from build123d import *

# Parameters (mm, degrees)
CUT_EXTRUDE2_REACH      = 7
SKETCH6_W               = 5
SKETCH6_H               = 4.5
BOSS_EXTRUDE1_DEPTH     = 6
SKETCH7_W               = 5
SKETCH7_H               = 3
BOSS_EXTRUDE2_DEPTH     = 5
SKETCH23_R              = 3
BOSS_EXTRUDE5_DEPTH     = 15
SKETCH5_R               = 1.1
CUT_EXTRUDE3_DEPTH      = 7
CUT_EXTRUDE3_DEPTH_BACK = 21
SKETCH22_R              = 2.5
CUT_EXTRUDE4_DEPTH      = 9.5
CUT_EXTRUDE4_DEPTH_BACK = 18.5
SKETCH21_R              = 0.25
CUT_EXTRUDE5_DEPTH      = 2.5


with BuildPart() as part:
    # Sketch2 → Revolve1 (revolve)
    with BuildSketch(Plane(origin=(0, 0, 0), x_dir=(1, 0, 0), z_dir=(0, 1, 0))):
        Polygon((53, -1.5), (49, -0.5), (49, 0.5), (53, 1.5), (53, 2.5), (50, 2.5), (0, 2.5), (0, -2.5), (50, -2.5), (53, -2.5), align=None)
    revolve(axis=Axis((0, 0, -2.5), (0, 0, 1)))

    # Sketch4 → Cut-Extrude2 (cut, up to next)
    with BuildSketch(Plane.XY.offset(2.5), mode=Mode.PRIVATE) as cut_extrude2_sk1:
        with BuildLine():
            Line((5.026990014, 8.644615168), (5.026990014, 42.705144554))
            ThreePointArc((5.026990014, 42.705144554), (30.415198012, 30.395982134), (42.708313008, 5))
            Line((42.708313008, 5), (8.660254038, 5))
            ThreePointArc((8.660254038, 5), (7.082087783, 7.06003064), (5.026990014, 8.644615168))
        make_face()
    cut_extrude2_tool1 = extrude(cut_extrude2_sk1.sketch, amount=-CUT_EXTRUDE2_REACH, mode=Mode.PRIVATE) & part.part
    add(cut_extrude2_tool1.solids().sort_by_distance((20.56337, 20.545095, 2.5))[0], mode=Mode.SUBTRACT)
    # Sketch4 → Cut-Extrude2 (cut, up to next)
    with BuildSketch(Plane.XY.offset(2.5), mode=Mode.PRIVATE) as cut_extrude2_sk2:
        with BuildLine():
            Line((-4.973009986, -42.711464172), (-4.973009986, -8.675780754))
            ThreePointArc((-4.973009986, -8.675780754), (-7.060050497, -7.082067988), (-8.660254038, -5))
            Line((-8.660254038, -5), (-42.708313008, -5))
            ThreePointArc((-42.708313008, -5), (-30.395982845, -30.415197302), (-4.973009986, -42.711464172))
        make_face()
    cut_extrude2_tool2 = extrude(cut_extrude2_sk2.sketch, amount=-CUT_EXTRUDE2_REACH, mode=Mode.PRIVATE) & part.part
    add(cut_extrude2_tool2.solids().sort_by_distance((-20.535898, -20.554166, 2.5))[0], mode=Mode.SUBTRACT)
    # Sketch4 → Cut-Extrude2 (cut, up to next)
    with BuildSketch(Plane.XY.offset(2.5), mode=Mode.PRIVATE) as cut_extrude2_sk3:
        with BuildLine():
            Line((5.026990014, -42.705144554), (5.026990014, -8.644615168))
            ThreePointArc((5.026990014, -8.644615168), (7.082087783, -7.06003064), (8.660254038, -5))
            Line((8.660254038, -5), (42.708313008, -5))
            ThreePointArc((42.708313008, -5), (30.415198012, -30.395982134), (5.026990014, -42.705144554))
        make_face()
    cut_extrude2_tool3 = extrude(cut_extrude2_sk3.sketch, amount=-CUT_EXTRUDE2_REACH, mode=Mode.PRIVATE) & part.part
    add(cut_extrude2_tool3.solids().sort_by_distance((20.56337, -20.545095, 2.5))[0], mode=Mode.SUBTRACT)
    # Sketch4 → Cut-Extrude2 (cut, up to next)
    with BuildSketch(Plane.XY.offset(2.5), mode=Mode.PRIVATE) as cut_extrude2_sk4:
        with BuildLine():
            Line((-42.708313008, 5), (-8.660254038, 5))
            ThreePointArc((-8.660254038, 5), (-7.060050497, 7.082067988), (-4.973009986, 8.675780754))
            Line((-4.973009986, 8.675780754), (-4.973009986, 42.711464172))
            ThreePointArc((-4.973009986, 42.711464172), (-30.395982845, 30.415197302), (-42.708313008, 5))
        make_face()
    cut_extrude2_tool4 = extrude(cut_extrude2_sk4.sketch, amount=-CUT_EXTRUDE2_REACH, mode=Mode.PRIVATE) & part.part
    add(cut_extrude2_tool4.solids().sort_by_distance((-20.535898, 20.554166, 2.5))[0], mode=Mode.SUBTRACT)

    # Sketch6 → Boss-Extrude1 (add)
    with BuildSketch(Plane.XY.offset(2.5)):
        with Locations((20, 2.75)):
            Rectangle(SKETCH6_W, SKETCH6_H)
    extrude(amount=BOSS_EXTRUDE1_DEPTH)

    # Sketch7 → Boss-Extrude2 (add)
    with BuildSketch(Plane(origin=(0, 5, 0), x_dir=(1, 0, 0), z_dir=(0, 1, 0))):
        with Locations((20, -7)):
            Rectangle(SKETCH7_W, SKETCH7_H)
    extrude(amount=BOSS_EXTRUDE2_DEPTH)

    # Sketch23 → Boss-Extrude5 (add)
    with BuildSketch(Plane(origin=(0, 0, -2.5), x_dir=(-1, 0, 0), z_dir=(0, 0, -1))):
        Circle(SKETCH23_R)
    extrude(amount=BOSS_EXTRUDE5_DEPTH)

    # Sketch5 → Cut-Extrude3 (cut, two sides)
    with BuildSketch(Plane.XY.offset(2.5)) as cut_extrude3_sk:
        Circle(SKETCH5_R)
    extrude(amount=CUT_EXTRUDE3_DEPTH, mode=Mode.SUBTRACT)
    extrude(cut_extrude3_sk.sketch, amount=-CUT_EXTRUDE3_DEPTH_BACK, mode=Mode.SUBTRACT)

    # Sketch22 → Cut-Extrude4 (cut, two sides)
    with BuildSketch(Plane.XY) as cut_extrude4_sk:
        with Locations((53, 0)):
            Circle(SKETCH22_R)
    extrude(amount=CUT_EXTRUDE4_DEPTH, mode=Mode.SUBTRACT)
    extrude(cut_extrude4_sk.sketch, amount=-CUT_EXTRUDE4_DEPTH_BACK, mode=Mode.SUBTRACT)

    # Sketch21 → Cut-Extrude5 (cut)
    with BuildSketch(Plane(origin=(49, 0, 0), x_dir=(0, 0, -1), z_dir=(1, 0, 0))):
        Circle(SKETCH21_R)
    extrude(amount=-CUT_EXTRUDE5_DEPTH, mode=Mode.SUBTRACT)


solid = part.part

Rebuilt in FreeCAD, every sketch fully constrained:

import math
import FreeCAD as App
import Part
import Sketcher


def add_polygon(sketch, points):
    """Adds a closed chain of lines whose ends are joined by coincident constraints."""
    first, n = sketch.GeometryCount, len(points)
    for a, b in zip(points, points[1:] + points[:1]):
        sketch.addGeometry(Part.LineSegment(App.Vector(*a, 0), App.Vector(*b, 0)), False)
    for i in range(n):
        sketch.addConstraint(Sketcher.Constraint("Coincident", first + i, 2, first + (i + 1) % n, 1))

doc = App.newDocument("Part")
body = doc.addObject("PartDesign::Body", "Body")

sketch1 = body.newObject("Sketcher::SketchObject", "Sketch")
sketch1.AttachmentSupport = (doc.getObject("XZ_Plane"), [""])
sketch1.MapMode = "FlatFace"
add_polygon(sketch1, [(53, 1.5), (49, 0.5), (49, -0.5), (53, -1.5), (53, -2.5), (0, -2.5), (0, 2.5), (53, 2.5)])
sketch1.addConstraint([
    Sketcher.Constraint("Vertical", 1),
    Sketcher.Constraint("Vertical", 3),
    Sketcher.Constraint("Horizontal", 4),
    Sketcher.Constraint("Vertical", 5),
    Sketcher.Constraint("Horizontal", 6),
    Sketcher.Constraint("Vertical", 7),
    Sketcher.Constraint("Symmetric", 4, 2, 5, 2, -1, 1),
    Sketcher.Constraint("Symmetric", 2, 2, 7, 2, -1),
    Sketcher.Constraint("Equal", 1, 3),
    Sketcher.Constraint("Equal", 0, 2),
    Sketcher.Constraint("DistanceX", 4, 2, 4, 1, 53.0),
    Sketcher.Constraint("DistanceY", 1, 2, 1, 1, 1.0),
    Sketcher.Constraint("DistanceY", 5, 1, 5, 2, 5.0),
    Sketcher.Constraint("DistanceX", -1, 1, 0, 2, 49.0),
])
revolution = body.newObject("PartDesign::Revolution", "Revolution")
revolution.Profile = sketch1
revolution.ReferenceAxis = (sketch1, ["V_Axis"])
revolution.Angle = 360

sketch2 = body.newObject("Sketcher::SketchObject", "Sketch001")
sketch2.AttachmentSupport = (doc.getObject("XY_Plane"), [""])
sketch2.MapMode = "FlatFace"
sketch2.AttachmentOffset = App.Placement(App.Vector(0, 0, 2.5), App.Rotation())
sketch2.addGeometry([
    Part.LineSegment(App.Vector(5, 43, 0), App.Vector(5, 9, 0)),
    Part.ArcOfCircle(Part.Circle(App.Vector(0, 0, 0), App.Vector(0, 0, 1), 10), math.radians(30), math.radians(60)),
    Part.LineSegment(App.Vector(9, 5, 0), App.Vector(43, 5, 0)),
    Part.ArcOfCircle(Part.Circle(App.Vector(0, 0, 0), App.Vector(0, 0, 1), 43), math.radians(7), math.radians(83)),
], False)
sketch2.addConstraint([
    Sketcher.Constraint("Coincident", 0, 2, 1, 2),
    Sketcher.Constraint("Coincident", 1, 1, 2, 1),
    Sketcher.Constraint("Coincident", 2, 2, 3, 1),
    Sketcher.Constraint("Coincident", 3, 2, 0, 1),
    Sketcher.Constraint("Vertical", 0),
    Sketcher.Constraint("Horizontal", 2),
    Sketcher.Constraint("Coincident", 1, 3, -1, 1),
    Sketcher.Constraint("Coincident", 3, 3, -1, 1),
    Sketcher.Constraint("Radius", 1, 10.0),
    Sketcher.Constraint("Radius", 3, 43.0),
    Sketcher.Constraint("DistanceY", -1, 1, 1, 1, 5.0),
    Sketcher.Constraint("DistanceY", 0, 2, 0, 1, 34.060529),
])
pocket1 = body.newObject("PartDesign::Pocket", "Pocket")
pocket1.Profile = sketch2
pocket1.Type = "UpToFirst"

sketch3 = body.newObject("Sketcher::SketchObject", "Sketch002")
sketch3.AttachmentSupport = (doc.getObject("XY_Plane"), [""])
sketch3.MapMode = "FlatFace"
sketch3.AttachmentOffset = App.Placement(App.Vector(0, 0, 2.5), App.Rotation())
sketch3.addGeometry([
    Part.LineSegment(App.Vector(-5, -43, 0), App.Vector(-5, -9, 0)),
    Part.ArcOfCircle(Part.Circle(App.Vector(0, 0, 0), App.Vector(0, 0, 1), 10), math.radians(-150), math.radians(-120)),
    Part.LineSegment(App.Vector(-9, -5, 0), App.Vector(-43, -5, 0)),
    Part.ArcOfCircle(Part.Circle(App.Vector(0, 0, 0), App.Vector(0, 0, 1), 43), math.radians(-173), math.radians(-97)),
], False)
sketch3.addConstraint([
    Sketcher.Constraint("Coincident", 0, 2, 1, 2),
    Sketcher.Constraint("Coincident", 1, 1, 2, 1),
    Sketcher.Constraint("Coincident", 2, 2, 3, 1),
    Sketcher.Constraint("Coincident", 3, 2, 0, 1),
    Sketcher.Constraint("Vertical", 0),
    Sketcher.Constraint("Horizontal", 2),
    Sketcher.Constraint("Coincident", 1, 3, -1, 1),
    Sketcher.Constraint("Coincident", 3, 3, -1, 1),
    Sketcher.Constraint("Radius", 1, 10.0),
    Sketcher.Constraint("Radius", 3, 43.0),
    Sketcher.Constraint("DistanceY", 1, 1, -1, 1, 5.0),
    Sketcher.Constraint("DistanceY", 0, 1, 0, 2, 34.035683),
])
pocket2 = body.newObject("PartDesign::Pocket", "Pocket001")
pocket2.Profile = sketch3
pocket2.Type = "UpToFirst"

sketch4 = body.newObject("Sketcher::SketchObject", "Sketch003")
sketch4.AttachmentSupport = (doc.getObject("XY_Plane"), [""])
sketch4.MapMode = "FlatFace"
sketch4.AttachmentOffset = App.Placement(App.Vector(0, 0, 2.5), App.Rotation())
sketch4.addGeometry([
    Part.LineSegment(App.Vector(5, -9, 0), App.Vector(5, -43, 0)),
    Part.ArcOfCircle(Part.Circle(App.Vector(0, 0, 0), App.Vector(0, 0, 1), 43), math.radians(-83), math.radians(-7)),
    Part.LineSegment(App.Vector(43, -5, 0), App.Vector(9, -5, 0)),
    Part.ArcOfCircle(Part.Circle(App.Vector(0, 0, 0), App.Vector(0, 0, 1), 10), math.radians(-60), math.radians(-30)),
], False)
sketch4.addConstraint([
    Sketcher.Constraint("Coincident", 0, 2, 1, 1),
    Sketcher.Constraint("Coincident", 1, 2, 2, 1),
    Sketcher.Constraint("Coincident", 2, 2, 3, 2),
    Sketcher.Constraint("Coincident", 3, 1, 0, 1),
    Sketcher.Constraint("Vertical", 0),
    Sketcher.Constraint("Horizontal", 2),
    Sketcher.Constraint("Coincident", 1, 3, -1, 1),
    Sketcher.Constraint("Coincident", 3, 3, -1, 1),
    Sketcher.Constraint("Radius", 1, 43.0),
    Sketcher.Constraint("Radius", 3, 10.0),
    Sketcher.Constraint("DistanceY", 1, 2, -1, 1, 5.0),
    Sketcher.Constraint("DistanceY", 0, 2, 0, 1, 34.060529),
])
pocket3 = body.newObject("PartDesign::Pocket", "Pocket002")
pocket3.Profile = sketch4
pocket3.Type = "UpToFirst"

sketch5 = body.newObject("Sketcher::SketchObject", "Sketch004")
sketch5.AttachmentSupport = (doc.getObject("XY_Plane"), [""])
sketch5.MapMode = "FlatFace"
sketch5.AttachmentOffset = App.Placement(App.Vector(0, 0, 2.5), App.Rotation())
sketch5.addGeometry([
    Part.LineSegment(App.Vector(-43, 5, 0), App.Vector(-9, 5, 0)),
    Part.ArcOfCircle(Part.Circle(App.Vector(0, 0, 0), App.Vector(0, 0, 1), 10), math.radians(120), math.radians(150)),
    Part.LineSegment(App.Vector(-5, 9, 0), App.Vector(-5, 43, 0)),
    Part.ArcOfCircle(Part.Circle(App.Vector(0, 0, 0), App.Vector(0, 0, 1), 43), math.radians(97), math.radians(173)),
], False)
sketch5.addConstraint([
    Sketcher.Constraint("Coincident", 0, 2, 1, 2),
    Sketcher.Constraint("Coincident", 1, 1, 2, 1),
    Sketcher.Constraint("Coincident", 2, 2, 3, 1),
    Sketcher.Constraint("Coincident", 3, 2, 0, 1),
    Sketcher.Constraint("Horizontal", 0),
    Sketcher.Constraint("Vertical", 2),
    Sketcher.Constraint("Coincident", 1, 3, -1, 1),
    Sketcher.Constraint("Coincident", 3, 3, -1, 1),
    Sketcher.Constraint("Radius", 1, 10.0),
    Sketcher.Constraint("Radius", 3, 43.0),
    Sketcher.Constraint("DistanceY", -1, 1, 0, 2, 5.0),
    Sketcher.Constraint("DistanceY", 2, 1, 2, 2, 34.035683),
])
pocket4 = body.newObject("PartDesign::Pocket", "Pocket003")
pocket4.Profile = sketch5
pocket4.Type = "UpToFirst"

sketch6 = body.newObject("Sketcher::SketchObject", "Sketch005")
sketch6.AttachmentSupport = (doc.getObject("XY_Plane"), [""])
sketch6.MapMode = "FlatFace"
sketch6.AttachmentOffset = App.Placement(App.Vector(0, 0, 2.5), App.Rotation())
add_polygon(sketch6, [(17.5, 5), (17.5, 0.5), (22.5, 0.5), (22.5, 5)])
sketch6.addConstraint([
    Sketcher.Constraint("Vertical", 0),
    Sketcher.Constraint("Horizontal", 1),
    Sketcher.Constraint("Vertical", 2),
    Sketcher.Constraint("Horizontal", 3),
    Sketcher.Constraint("DistanceX", 1, 1, 1, 2, 5.0),
    Sketcher.Constraint("DistanceY", 0, 2, 0, 1, 4.5),
    Sketcher.Constraint("DistanceY", -1, 1, 2, 2, 5.0),
    Sketcher.Constraint("DistanceX", -1, 1, 0, 2, 17.5),
])
pad1 = body.newObject("PartDesign::Pad", "Pad")
pad1.Profile = sketch6
pad1.Length = 6

sketch7 = body.newObject("Sketcher::SketchObject", "Sketch006")
sketch7.AttachmentSupport = (doc.getObject("XZ_Plane"), [""])
sketch7.MapMode = "FlatFace"
sketch7.AttachmentOffset = App.Placement(App.Vector(0, 0, -5), App.Rotation())
add_polygon(sketch7, [(17.5, 5.5), (17.5, 8.5), (22.5, 8.5), (22.5, 5.5)])
sketch7.addConstraint([
    Sketcher.Constraint("Vertical", 0),
    Sketcher.Constraint("Horizontal", 1),
    Sketcher.Constraint("Vertical", 2),
    Sketcher.Constraint("Horizontal", 3),
    Sketcher.Constraint("DistanceX", 1, 1, 1, 2, 5.0),
    Sketcher.Constraint("DistanceY", 0, 1, 0, 2, 3.0),
    Sketcher.Constraint("DistanceX", -1, 1, 0, 2, 17.5),
    Sketcher.Constraint("DistanceY", -1, 1, 0, 2, 8.5),
])
pad2 = body.newObject("PartDesign::Pad", "Pad001")
pad2.Profile = sketch7
pad2.Length = 5
pad2.Reversed = True

sketch8 = body.newObject("Sketcher::SketchObject", "Sketch007")
sketch8.AttachmentSupport = (doc.getObject("XY_Plane"), [""])
sketch8.MapMode = "FlatFace"
sketch8.AttachmentOffset = App.Placement(App.Vector(0, 0, -2.5), App.Rotation())
sketch8.addGeometry(Part.Circle(App.Vector(0, 0, 0), App.Vector(0, 0, 1), 3), False)
sketch8.addConstraint([
    Sketcher.Constraint("Coincident", 0, 3, -1, 1),
    Sketcher.Constraint("Diameter", 0, 6.0),
])
pad3 = body.newObject("PartDesign::Pad", "Pad002")
pad3.Profile = sketch8
pad3.Length = 15
pad3.Reversed = True

sketch9 = body.newObject("Sketcher::SketchObject", "Sketch008")
sketch9.AttachmentSupport = (doc.getObject("XY_Plane"), [""])
sketch9.MapMode = "FlatFace"
sketch9.AttachmentOffset = App.Placement(App.Vector(0, 0, 2.5), App.Rotation())
sketch9.addGeometry(Part.Circle(App.Vector(0, 0, 0), App.Vector(0, 0, 1), 1.1), False)
sketch9.addConstraint([
    Sketcher.Constraint("Coincident", 0, 3, -1, 1),
    Sketcher.Constraint("Diameter", 0, 2.2),
])
pocket5 = body.newObject("PartDesign::Pocket", "Pocket004")
pocket5.Profile = sketch9
pocket5.Type = "ThroughAll"
pocket5.Midplane = True

sketch10 = body.newObject("Sketcher::SketchObject", "Sketch009")
sketch10.AttachmentSupport = (doc.getObject("XY_Plane"), [""])
sketch10.MapMode = "FlatFace"
sketch10.addGeometry(Part.Circle(App.Vector(53, 0, 0), App.Vector(0, 0, 1), 2.5), False)
sketch10.addConstraint([
    Sketcher.Constraint("PointOnObject", 0, 3, -1),
    Sketcher.Constraint("Diameter", 0, 5.0),
    Sketcher.Constraint("DistanceX", -1, 1, 0, 3, 53.0),
])
pocket6 = body.newObject("PartDesign::Pocket", "Pocket005")
pocket6.Profile = sketch10
pocket6.Type = "ThroughAll"
pocket6.Midplane = True

sketch11 = body.newObject("Sketcher::SketchObject", "Sketch010")
sketch11.AttachmentSupport = (doc.getObject("YZ_Plane"), [""])
sketch11.MapMode = "FlatFace"
sketch11.AttachmentOffset = App.Placement(App.Vector(0, 0, 49), App.Rotation())
sketch11.addGeometry(Part.Circle(App.Vector(0, 0, 0), App.Vector(0, 0, 1), 0.25), False)
sketch11.addConstraint([
    Sketcher.Constraint("Coincident", 0, 3, -1, 1),
    Sketcher.Constraint("Diameter", 0, 0.5),
])
pocket7 = body.newObject("PartDesign::Pocket", "Pocket006")
pocket7.Profile = sketch11
pocket7.Length = 2.5

doc.recompute()
